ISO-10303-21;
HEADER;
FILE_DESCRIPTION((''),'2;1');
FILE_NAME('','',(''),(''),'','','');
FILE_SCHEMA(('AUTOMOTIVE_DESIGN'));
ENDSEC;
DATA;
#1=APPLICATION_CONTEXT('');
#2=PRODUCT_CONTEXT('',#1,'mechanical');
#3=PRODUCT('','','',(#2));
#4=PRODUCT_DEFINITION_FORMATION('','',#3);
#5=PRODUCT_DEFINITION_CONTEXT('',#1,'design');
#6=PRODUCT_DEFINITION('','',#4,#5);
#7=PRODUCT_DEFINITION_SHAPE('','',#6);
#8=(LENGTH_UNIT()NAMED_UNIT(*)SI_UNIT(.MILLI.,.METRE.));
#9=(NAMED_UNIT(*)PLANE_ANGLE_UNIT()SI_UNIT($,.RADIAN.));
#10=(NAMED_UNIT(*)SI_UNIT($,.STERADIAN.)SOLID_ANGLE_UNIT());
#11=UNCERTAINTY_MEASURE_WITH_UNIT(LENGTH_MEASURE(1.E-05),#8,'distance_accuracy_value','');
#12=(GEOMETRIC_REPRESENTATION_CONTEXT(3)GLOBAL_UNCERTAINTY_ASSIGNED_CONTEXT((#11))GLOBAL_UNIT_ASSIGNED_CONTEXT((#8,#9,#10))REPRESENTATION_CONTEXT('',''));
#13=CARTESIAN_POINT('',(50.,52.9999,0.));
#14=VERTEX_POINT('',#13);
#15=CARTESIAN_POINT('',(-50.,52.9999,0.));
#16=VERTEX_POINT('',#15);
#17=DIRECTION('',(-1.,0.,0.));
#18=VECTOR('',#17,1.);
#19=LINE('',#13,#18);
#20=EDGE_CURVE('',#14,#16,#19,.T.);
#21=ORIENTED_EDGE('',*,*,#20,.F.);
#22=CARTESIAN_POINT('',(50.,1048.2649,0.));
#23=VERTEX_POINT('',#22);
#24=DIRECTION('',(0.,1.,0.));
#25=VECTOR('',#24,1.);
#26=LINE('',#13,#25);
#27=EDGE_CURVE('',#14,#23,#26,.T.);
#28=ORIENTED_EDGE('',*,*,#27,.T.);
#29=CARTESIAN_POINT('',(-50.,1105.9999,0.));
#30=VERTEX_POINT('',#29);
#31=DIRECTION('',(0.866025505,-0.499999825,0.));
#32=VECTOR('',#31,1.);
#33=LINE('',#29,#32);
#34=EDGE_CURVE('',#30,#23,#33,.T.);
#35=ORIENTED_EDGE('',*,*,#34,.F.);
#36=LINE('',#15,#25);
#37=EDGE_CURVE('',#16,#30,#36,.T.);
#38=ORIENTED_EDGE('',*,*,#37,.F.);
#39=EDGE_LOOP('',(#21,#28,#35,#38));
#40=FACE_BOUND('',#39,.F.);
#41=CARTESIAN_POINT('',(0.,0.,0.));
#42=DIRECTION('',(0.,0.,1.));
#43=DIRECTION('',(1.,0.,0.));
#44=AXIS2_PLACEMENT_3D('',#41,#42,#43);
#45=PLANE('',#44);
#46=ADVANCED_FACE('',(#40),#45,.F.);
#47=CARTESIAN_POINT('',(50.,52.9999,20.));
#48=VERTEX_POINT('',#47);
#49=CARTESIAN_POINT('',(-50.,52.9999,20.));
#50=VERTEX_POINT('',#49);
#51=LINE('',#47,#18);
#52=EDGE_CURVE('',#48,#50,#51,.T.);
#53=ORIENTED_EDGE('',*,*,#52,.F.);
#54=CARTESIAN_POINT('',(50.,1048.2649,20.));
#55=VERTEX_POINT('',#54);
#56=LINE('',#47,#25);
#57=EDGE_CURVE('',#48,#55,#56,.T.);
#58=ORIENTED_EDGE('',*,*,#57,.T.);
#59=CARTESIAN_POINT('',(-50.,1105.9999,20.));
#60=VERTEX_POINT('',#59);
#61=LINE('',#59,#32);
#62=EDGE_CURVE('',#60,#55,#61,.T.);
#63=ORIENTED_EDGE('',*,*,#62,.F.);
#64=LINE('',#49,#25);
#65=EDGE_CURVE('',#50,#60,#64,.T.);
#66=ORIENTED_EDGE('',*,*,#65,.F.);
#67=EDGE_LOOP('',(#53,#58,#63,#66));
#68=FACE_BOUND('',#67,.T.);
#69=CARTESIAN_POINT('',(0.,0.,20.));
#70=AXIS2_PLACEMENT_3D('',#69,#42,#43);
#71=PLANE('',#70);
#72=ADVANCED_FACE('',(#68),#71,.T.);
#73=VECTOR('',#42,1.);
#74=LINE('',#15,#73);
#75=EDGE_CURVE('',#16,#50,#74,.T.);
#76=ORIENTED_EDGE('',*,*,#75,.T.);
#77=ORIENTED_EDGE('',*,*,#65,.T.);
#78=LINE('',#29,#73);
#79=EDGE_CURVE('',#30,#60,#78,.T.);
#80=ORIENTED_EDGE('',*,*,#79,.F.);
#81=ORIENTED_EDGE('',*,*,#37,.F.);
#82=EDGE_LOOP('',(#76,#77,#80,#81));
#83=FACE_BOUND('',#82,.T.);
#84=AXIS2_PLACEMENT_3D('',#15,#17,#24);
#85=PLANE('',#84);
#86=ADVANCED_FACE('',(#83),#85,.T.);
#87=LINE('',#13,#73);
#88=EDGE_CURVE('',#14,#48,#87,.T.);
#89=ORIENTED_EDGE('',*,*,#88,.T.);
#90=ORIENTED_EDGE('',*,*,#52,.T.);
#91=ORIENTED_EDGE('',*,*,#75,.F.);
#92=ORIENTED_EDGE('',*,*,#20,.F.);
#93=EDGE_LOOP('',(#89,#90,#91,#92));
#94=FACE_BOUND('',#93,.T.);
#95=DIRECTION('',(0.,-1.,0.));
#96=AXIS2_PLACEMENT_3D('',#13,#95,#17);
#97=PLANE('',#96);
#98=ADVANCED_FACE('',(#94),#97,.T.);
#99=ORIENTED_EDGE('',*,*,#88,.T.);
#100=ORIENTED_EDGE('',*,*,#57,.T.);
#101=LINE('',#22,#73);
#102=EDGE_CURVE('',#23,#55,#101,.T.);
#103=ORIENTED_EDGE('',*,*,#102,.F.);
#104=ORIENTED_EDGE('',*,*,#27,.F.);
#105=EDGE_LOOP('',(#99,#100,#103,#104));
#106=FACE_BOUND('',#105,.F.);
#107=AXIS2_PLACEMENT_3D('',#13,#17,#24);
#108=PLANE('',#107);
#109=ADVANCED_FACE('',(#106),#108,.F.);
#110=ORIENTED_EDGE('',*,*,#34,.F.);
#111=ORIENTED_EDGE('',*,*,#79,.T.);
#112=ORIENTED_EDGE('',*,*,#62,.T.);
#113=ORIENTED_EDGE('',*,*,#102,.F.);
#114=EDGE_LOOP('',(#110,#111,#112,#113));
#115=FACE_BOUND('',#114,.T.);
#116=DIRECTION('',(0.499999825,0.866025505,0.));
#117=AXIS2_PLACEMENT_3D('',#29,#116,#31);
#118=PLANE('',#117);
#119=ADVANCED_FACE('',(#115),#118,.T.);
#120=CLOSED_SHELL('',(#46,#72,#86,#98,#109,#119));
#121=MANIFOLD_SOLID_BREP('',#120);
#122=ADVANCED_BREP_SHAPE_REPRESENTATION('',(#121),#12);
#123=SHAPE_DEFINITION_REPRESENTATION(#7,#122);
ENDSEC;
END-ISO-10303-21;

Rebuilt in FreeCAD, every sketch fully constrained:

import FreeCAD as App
import Part
import Sketcher

V = App.Vector
Q = App.Units.Quantity

doc = App.newDocument("Part")
body = doc.addObject("PartDesign::Body", "Body")

sketch1 = doc.addObject("Sketcher::SketchObject", "Sketch")
body.addObject(sketch1)
sketch1.AttachmentSupport = (doc.XY_Plane, [""])
sketch1.MapMode = "FlatFace"
sketch1.addGeometry([
    Part.LineSegment(V(-50, 52.9999, 0), V(50, 52.9999, 0)),
    Part.LineSegment(V(50, 52.9999, 0), V(50, 1048.2649, 0)),
    Part.LineSegment(V(50, 1048.2649, 0), V(-50, 1105.9999, 0)),
    Part.LineSegment(V(-50, 1105.9999, 0), V(-50, 52.9999, 0)),
], False)
sketch1.addConstraint([
    Sketcher.Constraint("Coincident", 0, 2, 1, 1),
    Sketcher.Constraint("Coincident", 1, 2, 2, 1),
    Sketcher.Constraint("Coincident", 2, 2, 3, 1),
    Sketcher.Constraint("Coincident", 3, 2, 0, 1),
    Sketcher.Constraint("Horizontal", 0),
    Sketcher.Constraint("Vertical", 1),
    Sketcher.Constraint("Vertical", 3),
    Sketcher.Constraint("DistanceY", 3, 2, 3, 1, Q("41.4567 in")),
    Sketcher.Constraint("Angle", 2, Q("150 deg")),
    Sketcher.Constraint("DistanceY", 1, 1, 1, 2, 995.265),
    Sketcher.Constraint("DistanceX", -1, 1, 0, 2, Q("1.9685 in")),
    Sketcher.Constraint("DistanceY", -1, 1, 0, 2, Q("2.0866 in")),
])
pad1 = doc.addObject("PartDesign::Pad", "Pad")
body.addObject(pad1)
pad1.Profile = sketch1
pad1.Length = Q("0.7874016 in")

doc.recompute()
